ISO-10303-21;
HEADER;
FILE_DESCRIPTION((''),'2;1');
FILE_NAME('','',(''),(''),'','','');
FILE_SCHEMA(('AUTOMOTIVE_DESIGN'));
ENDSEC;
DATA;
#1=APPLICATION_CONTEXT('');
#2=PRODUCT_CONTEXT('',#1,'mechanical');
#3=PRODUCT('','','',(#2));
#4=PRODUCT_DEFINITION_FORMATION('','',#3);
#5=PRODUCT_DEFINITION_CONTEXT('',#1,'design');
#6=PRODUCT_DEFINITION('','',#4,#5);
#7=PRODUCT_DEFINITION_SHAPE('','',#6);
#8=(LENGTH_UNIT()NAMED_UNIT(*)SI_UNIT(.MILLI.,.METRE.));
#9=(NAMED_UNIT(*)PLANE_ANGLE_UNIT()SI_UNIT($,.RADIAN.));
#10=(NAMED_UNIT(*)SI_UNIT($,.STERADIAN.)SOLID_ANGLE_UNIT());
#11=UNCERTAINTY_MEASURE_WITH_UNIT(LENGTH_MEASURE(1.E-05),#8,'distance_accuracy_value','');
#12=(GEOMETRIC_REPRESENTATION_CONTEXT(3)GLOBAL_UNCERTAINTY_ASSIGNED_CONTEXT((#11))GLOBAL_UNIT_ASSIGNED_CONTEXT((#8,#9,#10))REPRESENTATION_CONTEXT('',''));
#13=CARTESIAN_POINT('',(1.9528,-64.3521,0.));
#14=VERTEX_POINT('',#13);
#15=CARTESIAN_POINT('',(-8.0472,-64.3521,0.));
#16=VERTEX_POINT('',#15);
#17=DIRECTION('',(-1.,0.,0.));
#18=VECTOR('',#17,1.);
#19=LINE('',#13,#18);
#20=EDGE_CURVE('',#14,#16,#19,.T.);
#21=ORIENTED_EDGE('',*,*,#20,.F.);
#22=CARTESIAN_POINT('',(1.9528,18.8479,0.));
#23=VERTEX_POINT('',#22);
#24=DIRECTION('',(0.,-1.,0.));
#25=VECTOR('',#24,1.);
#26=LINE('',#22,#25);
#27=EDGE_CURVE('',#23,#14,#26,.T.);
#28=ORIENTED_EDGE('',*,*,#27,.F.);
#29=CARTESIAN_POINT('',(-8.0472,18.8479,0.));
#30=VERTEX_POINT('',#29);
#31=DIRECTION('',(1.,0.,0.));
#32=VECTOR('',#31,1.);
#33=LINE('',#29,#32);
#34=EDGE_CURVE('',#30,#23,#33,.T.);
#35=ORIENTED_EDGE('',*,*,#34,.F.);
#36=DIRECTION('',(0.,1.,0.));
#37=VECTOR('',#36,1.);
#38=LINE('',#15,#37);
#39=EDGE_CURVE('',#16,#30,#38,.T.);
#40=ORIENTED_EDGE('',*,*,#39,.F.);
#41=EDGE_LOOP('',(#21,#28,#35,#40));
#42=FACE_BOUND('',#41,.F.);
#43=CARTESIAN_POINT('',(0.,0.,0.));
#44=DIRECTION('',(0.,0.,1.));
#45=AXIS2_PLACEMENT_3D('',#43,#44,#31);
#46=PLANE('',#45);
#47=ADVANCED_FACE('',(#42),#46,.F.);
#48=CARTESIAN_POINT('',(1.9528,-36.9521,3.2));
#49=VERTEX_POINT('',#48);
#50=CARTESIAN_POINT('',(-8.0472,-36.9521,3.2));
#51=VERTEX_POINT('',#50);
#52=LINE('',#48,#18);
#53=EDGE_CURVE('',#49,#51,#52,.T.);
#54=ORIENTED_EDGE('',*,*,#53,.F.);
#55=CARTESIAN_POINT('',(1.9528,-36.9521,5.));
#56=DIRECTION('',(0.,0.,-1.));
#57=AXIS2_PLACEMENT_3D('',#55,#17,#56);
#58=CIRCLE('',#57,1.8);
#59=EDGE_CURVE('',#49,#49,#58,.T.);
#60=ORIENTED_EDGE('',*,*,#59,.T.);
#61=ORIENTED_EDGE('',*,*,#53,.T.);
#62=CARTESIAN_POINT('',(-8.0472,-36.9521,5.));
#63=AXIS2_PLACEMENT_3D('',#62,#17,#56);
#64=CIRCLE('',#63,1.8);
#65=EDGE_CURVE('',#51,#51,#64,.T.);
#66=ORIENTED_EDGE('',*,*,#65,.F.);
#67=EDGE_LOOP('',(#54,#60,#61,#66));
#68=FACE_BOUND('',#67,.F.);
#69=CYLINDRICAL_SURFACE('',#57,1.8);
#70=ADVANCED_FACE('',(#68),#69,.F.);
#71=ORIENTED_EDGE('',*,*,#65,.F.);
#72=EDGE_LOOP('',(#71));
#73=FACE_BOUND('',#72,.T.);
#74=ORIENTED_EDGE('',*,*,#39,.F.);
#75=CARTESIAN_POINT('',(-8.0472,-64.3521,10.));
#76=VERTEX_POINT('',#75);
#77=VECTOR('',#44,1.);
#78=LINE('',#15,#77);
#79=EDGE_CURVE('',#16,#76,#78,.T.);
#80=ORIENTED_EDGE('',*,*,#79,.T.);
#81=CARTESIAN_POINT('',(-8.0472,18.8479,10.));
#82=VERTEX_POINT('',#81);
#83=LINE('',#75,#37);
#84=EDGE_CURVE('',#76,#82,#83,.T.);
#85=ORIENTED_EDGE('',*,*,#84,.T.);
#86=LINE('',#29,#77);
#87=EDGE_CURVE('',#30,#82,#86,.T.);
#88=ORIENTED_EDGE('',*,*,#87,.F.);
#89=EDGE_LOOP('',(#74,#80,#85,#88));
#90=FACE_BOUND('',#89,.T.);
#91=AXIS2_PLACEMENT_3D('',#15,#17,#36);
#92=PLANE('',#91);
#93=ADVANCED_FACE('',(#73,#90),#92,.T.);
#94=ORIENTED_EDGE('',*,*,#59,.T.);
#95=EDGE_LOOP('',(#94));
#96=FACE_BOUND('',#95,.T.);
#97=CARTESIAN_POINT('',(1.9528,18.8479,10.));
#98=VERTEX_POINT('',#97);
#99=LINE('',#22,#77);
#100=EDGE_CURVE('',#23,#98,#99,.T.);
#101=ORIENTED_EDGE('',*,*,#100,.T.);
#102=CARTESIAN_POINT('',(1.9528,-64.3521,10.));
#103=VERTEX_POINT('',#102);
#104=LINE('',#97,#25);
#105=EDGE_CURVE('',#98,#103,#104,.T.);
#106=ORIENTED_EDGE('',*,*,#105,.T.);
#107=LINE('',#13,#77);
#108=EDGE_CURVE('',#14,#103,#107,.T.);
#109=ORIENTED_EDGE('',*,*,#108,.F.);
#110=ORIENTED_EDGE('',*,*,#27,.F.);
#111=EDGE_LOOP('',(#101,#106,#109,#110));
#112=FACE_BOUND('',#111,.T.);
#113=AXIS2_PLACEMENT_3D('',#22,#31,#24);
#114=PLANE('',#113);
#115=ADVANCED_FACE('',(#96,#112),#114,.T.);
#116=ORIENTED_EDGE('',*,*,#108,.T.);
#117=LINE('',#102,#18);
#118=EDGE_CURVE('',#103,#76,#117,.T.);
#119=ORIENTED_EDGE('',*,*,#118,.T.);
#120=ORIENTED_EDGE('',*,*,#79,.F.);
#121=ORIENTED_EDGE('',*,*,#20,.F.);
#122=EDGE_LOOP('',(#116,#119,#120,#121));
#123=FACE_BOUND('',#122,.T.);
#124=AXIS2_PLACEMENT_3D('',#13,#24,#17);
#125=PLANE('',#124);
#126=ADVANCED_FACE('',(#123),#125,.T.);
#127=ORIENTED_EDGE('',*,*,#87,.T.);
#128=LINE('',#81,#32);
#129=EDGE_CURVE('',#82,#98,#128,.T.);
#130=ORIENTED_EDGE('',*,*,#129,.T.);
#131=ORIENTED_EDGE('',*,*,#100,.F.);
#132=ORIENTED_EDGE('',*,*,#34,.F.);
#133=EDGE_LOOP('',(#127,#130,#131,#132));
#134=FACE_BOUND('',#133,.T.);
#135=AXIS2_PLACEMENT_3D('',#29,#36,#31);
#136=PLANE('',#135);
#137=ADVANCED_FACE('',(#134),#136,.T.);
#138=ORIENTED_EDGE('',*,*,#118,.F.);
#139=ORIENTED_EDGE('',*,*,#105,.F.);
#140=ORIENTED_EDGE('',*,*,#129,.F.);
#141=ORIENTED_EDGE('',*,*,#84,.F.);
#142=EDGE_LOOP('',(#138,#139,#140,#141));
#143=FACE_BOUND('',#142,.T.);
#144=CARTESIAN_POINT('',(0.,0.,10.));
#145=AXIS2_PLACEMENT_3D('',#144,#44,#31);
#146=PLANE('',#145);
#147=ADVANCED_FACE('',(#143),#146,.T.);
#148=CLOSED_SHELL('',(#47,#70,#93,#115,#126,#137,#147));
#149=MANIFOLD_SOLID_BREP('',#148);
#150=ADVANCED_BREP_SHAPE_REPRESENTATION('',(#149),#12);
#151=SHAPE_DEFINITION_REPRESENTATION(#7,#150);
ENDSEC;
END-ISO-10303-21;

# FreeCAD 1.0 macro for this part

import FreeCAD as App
import Part
import Sketcher

V = App.Vector
Q = App.Units.Quantity

doc = App.newDocument("Part")
params = doc.addObject("Spreadsheet::Sheet", "Params")
for row, (alias, value) in enumerate([
    ("sketch1_width", "10 mm"),
    ("sketch1_height", "83.2 mm"),
    ("pad1_length", "10 mm"),
    ("sketch2_diameter", "3.6 mm"),
    ("hole_diameter", "3.6 mm"),
], start=1):
    params.set(f"A{row}", alias)
    params.set(f"B{row}", "=" + value)
    params.setAlias(f"B{row}", alias)

body = doc.addObject("PartDesign::Body", "Body")

# Sketch on XY plane
sketch1 = body.newObject("Sketcher::SketchObject", "Sketch")
sketch1.AttachmentSupport = (doc.getObject("XY_Plane"), [""])
sketch1.MapMode = "FlatFace"
sketch1.addGeometry([
    Part.LineSegment(V(1.9528, 18.8479, 0), V(-8.0472, 18.8479, 0)),
    Part.LineSegment(V(-8.0472, 18.8479, 0), V(-8.0472, -64.3521, 0)),
    Part.LineSegment(V(-8.0472, -64.3521, 0), V(1.9528, -64.3521, 0)),
    Part.LineSegment(V(1.9528, -64.3521, 0), V(1.9528, 18.8479, 0)),
], False)
sketch1.addConstraint([
    Sketcher.Constraint("Coincident", 0, 2, 1, 1),
    Sketcher.Constraint("Coincident", 1, 2, 2, 1),
    Sketcher.Constraint("Coincident", 2, 2, 3, 1),
    Sketcher.Constraint("Coincident", 3, 2, 0, 1),
    Sketcher.Constraint("Horizontal", 0),
    Sketcher.Constraint("Vertical", 1),
    Sketcher.Constraint("Horizontal", 2),
    Sketcher.Constraint("Vertical", 3),
    Sketcher.Constraint("DistanceX", 0, 2, 0, 1, Q("10 mm")),
    Sketcher.Constraint("DistanceY", 1, 2, 1, 1, Q("83.2 mm")),
    Sketcher.Constraint("DistanceY", -1, 1, 0, 2, Q("18.848 mm")),
    Sketcher.Constraint("DistanceX", 0, 2, -1, 1, Q("8.0472 mm")),
])
sketch1.setExpression("Constraints[8]", "Params.sketch1_width")
sketch1.setExpression("Constraints[9]", "Params.sketch1_height")
pad1 = body.newObject("PartDesign::Pad", "Pad")
pad1.Profile = sketch1
pad1.setExpression("Length", "Params.pad1_length")

# Sketch on YZ plane
sketch2 = body.newObject("Sketcher::SketchObject", "Sketch001")
sketch2.AttachmentSupport = (doc.getObject("YZ_Plane"), [""])
sketch2.MapMode = "FlatFace"
sketch2.AttachmentOffset = App.Placement(V(0, 0, 1.9528), App.Rotation())
sketch2.addGeometry(Part.Circle(V(-36.9521, 5, 0), V(0, 0, 1), 1.8), False)
sketch2.addConstraint([
    Sketcher.Constraint("Diameter", 0, Q("3.6 mm")),
    Sketcher.Constraint("DistanceY", -1, 1, 0, 3, Q("5 mm")),
    Sketcher.Constraint("DistanceX", 0, 3, -1, 1, Q("36.952 mm")),
])
sketch2.setExpression("Constraints[0]", "Params.sketch2_diameter")
doc.recompute()
hole = body.newObject("PartDesign::Hole", "Hole")
hole.Profile = sketch2
hole.ThreadType = "None"
hole.setExpression("Diameter", "Params.hole_diameter")
hole.DepthType = "ThroughAll"

doc.recompute()
